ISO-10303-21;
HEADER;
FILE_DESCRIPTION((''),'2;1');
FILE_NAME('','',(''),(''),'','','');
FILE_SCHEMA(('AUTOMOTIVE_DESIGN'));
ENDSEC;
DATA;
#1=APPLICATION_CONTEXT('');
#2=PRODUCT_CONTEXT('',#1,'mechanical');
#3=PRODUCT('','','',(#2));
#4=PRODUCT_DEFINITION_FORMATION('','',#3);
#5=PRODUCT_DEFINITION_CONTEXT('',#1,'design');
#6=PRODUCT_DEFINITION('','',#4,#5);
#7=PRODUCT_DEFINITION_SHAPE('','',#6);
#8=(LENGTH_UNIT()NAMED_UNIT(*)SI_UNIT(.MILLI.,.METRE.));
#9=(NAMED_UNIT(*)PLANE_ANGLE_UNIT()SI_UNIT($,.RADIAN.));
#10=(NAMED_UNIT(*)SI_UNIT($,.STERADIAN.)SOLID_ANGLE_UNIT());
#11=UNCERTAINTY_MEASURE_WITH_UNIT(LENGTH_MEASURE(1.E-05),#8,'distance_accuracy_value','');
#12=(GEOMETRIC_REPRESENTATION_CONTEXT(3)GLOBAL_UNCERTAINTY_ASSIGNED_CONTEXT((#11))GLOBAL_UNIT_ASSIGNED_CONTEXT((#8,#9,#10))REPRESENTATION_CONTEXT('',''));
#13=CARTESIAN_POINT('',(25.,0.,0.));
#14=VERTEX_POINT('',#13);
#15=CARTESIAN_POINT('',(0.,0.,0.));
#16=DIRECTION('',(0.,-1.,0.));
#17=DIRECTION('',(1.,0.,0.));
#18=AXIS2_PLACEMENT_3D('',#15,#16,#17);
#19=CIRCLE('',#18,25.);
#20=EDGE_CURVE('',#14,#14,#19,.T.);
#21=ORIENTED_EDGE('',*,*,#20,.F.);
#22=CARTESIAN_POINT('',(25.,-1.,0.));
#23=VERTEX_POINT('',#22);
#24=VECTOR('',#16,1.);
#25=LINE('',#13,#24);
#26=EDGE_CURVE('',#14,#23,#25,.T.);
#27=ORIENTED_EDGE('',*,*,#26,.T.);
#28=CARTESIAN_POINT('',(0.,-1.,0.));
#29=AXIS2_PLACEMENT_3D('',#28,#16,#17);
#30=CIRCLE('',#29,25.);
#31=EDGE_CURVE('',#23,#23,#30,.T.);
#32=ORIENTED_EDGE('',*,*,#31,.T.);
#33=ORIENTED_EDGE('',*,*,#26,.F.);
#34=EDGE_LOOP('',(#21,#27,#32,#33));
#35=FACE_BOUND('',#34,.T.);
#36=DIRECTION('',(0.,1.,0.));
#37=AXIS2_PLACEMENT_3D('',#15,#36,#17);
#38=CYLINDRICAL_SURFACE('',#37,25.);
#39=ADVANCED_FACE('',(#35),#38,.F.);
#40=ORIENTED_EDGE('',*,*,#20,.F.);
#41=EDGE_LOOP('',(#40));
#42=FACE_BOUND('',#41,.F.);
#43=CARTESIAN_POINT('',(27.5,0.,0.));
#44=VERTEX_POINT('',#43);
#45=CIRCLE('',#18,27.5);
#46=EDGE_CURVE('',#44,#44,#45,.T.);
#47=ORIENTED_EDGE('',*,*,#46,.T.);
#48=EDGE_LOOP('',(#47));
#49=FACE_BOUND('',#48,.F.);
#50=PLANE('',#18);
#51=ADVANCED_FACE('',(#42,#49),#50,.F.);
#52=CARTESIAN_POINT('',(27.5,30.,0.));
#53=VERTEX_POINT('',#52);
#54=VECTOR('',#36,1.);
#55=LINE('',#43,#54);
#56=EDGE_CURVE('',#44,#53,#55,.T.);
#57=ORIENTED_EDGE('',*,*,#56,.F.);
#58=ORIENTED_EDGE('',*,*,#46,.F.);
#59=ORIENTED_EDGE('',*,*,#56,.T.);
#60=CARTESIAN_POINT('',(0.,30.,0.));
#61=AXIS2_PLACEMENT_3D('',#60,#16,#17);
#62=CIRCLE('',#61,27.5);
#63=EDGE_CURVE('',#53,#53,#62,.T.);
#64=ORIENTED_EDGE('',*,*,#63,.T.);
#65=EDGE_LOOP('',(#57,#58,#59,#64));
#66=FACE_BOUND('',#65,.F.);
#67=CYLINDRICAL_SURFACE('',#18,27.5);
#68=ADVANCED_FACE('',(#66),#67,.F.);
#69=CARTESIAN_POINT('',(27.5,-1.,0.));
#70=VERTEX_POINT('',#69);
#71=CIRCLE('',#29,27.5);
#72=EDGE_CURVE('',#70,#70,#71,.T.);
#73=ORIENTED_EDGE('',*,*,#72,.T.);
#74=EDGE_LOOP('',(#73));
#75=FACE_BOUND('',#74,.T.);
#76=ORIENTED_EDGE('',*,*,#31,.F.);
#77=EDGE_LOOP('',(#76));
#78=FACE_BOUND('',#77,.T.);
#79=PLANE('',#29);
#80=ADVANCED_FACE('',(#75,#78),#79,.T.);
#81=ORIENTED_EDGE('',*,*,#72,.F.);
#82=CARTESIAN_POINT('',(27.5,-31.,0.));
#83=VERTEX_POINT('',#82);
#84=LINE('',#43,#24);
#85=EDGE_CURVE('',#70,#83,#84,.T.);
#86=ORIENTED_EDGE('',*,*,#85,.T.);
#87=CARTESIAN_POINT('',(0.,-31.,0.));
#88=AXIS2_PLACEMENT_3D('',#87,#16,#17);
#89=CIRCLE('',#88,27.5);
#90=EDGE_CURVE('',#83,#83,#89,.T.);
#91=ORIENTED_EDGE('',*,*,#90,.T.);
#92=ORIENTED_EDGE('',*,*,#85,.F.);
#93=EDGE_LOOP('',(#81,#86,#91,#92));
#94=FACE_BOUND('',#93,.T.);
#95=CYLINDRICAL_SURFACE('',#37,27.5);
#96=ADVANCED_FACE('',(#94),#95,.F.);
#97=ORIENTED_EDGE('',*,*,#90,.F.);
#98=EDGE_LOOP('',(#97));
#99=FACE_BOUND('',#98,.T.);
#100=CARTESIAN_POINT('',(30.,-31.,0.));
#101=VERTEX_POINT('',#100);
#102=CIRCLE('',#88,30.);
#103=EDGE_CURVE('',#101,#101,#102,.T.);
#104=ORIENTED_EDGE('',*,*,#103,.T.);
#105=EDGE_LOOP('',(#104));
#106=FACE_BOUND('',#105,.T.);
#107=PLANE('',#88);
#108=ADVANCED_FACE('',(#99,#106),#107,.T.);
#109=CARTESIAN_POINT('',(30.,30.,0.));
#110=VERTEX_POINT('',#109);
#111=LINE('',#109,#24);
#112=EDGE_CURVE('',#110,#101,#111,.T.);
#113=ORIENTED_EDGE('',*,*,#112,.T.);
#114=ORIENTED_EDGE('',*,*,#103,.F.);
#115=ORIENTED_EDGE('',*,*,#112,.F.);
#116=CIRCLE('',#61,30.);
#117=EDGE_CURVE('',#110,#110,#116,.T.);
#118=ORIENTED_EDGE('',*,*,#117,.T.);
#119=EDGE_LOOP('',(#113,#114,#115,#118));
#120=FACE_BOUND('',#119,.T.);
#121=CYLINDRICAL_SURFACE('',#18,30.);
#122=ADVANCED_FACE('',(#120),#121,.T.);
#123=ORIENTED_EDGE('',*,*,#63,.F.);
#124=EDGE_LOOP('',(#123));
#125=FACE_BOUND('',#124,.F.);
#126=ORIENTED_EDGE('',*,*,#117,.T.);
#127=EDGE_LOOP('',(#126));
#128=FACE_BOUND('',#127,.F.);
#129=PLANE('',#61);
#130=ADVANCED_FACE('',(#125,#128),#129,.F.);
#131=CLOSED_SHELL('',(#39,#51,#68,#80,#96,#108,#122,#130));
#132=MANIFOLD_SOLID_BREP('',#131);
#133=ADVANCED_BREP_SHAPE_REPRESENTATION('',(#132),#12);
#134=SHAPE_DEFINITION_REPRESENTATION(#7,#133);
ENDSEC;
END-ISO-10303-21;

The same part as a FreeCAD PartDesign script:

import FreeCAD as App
import Part
import Sketcher
Q = App.Units.Quantity

doc = App.newDocument("Part")
params = doc.addObject("Spreadsheet::Sheet", "Params")
for row, (alias, value) in enumerate([
    ("sketch1_diameter", "60 mm"),
    ("sketch1_diameter2", "55 mm"),
    ("pad1_length", "31 mm"),
    ("sketch2_diameter", "55 mm"),
    ("sketch2_diameter2", "50 mm"),
    ("pad2_length", "1 mm"),
    ("sketch3_diameter", "60 mm"),
    ("sketch3_diameter2", "55 mm"),
    ("pad3_length", "30 mm"),
], start=1):
    params.set(f"A{row}", alias)
    params.set(f"B{row}", "=" + value)
    params.setAlias(f"B{row}", alias)

body = doc.addObject("PartDesign::Body", "Body")

# Sketch on XZ plane
sketch1 = doc.addObject("Sketcher::SketchObject", "Sketch")
body.addObject(sketch1)
sketch1.AttachmentSupport = (doc.XZ_Plane, [""])
sketch1.MapMode = "FlatFace"
sketch1.addGeometry([
    Part.Circle(App.Vector(0, 0, 0), App.Vector(0, 0, 1), 30),
    Part.Circle(App.Vector(0, 0, 0), App.Vector(0, 0, 1), 28),
], False)
sketch1.addConstraint([
    Sketcher.Constraint("Coincident", 0, 3, -1, 1),
    Sketcher.Constraint("Coincident", 1, 3, -1, 1),
    Sketcher.Constraint("Diameter", 0, Q("60 mm")),
    Sketcher.Constraint("Diameter", 1, Q("55 mm")),
])
sketch1.setExpression("Constraints[2]", "Params.sketch1_diameter")
sketch1.setExpression("Constraints[3]", "Params.sketch1_diameter2")
pad1 = doc.addObject("PartDesign::Pad", "Pad")
body.addObject(pad1)
pad1.Profile = sketch1
pad1.setExpression("Length", "Params.pad1_length")

# Sketch on XZ plane
sketch2 = doc.addObject("Sketcher::SketchObject", "Sketch001")
body.addObject(sketch2)
sketch2.AttachmentSupport = (doc.XZ_Plane, [""])
sketch2.MapMode = "FlatFace"
sketch2.addGeometry([
    Part.Circle(App.Vector(0, 0, 0), App.Vector(0, 0, 1), 28),
    Part.Circle(App.Vector(0, 0, 0), App.Vector(0, 0, 1), 25),
], False)
sketch2.addConstraint([
    Sketcher.Constraint("Coincident", 0, 3, -1, 1),
    Sketcher.Constraint("Coincident", 1, 3, -1, 1),
    Sketcher.Constraint("Diameter", 0, Q("55 mm")),
    Sketcher.Constraint("Diameter", 1, Q("50 mm")),
])
sketch2.setExpression("Constraints[2]", "Params.sketch2_diameter")
sketch2.setExpression("Constraints[3]", "Params.sketch2_diameter2")
pad2 = doc.addObject("PartDesign::Pad", "Pad001")
body.addObject(pad2)
pad2.Profile = sketch2
pad2.setExpression("Length", "Params.pad2_length")

# Sketch on XZ plane
sketch3 = doc.addObject("Sketcher::SketchObject", "Sketch002")
body.addObject(sketch3)
sketch3.AttachmentSupport = (doc.XZ_Plane, [""])
sketch3.MapMode = "FlatFace"
sketch3.addGeometry([
    Part.Circle(App.Vector(0, 0, 0), App.Vector(0, 0, 1), 30),
    Part.Circle(App.Vector(0, 0, 0), App.Vector(0, 0, 1), 28),
], False)
sketch3.addConstraint([
    Sketcher.Constraint("Coincident", 0, 3, -1, 1),
    Sketcher.Constraint("Coincident", 1, 3, -1, 1),
    Sketcher.Constraint("Diameter", 0, Q("60 mm")),
    Sketcher.Constraint("Diameter", 1, Q("55 mm")),
])
sketch3.setExpression("Constraints[2]", "Params.sketch3_diameter")
sketch3.setExpression("Constraints[3]", "Params.sketch3_diameter2")
pad3 = doc.addObject("PartDesign::Pad", "Pad002")
body.addObject(pad3)
pad3.Profile = sketch3
pad3.setExpression("Length", "Params.pad3_length")
pad3.Reversed = True

doc.recompute()
